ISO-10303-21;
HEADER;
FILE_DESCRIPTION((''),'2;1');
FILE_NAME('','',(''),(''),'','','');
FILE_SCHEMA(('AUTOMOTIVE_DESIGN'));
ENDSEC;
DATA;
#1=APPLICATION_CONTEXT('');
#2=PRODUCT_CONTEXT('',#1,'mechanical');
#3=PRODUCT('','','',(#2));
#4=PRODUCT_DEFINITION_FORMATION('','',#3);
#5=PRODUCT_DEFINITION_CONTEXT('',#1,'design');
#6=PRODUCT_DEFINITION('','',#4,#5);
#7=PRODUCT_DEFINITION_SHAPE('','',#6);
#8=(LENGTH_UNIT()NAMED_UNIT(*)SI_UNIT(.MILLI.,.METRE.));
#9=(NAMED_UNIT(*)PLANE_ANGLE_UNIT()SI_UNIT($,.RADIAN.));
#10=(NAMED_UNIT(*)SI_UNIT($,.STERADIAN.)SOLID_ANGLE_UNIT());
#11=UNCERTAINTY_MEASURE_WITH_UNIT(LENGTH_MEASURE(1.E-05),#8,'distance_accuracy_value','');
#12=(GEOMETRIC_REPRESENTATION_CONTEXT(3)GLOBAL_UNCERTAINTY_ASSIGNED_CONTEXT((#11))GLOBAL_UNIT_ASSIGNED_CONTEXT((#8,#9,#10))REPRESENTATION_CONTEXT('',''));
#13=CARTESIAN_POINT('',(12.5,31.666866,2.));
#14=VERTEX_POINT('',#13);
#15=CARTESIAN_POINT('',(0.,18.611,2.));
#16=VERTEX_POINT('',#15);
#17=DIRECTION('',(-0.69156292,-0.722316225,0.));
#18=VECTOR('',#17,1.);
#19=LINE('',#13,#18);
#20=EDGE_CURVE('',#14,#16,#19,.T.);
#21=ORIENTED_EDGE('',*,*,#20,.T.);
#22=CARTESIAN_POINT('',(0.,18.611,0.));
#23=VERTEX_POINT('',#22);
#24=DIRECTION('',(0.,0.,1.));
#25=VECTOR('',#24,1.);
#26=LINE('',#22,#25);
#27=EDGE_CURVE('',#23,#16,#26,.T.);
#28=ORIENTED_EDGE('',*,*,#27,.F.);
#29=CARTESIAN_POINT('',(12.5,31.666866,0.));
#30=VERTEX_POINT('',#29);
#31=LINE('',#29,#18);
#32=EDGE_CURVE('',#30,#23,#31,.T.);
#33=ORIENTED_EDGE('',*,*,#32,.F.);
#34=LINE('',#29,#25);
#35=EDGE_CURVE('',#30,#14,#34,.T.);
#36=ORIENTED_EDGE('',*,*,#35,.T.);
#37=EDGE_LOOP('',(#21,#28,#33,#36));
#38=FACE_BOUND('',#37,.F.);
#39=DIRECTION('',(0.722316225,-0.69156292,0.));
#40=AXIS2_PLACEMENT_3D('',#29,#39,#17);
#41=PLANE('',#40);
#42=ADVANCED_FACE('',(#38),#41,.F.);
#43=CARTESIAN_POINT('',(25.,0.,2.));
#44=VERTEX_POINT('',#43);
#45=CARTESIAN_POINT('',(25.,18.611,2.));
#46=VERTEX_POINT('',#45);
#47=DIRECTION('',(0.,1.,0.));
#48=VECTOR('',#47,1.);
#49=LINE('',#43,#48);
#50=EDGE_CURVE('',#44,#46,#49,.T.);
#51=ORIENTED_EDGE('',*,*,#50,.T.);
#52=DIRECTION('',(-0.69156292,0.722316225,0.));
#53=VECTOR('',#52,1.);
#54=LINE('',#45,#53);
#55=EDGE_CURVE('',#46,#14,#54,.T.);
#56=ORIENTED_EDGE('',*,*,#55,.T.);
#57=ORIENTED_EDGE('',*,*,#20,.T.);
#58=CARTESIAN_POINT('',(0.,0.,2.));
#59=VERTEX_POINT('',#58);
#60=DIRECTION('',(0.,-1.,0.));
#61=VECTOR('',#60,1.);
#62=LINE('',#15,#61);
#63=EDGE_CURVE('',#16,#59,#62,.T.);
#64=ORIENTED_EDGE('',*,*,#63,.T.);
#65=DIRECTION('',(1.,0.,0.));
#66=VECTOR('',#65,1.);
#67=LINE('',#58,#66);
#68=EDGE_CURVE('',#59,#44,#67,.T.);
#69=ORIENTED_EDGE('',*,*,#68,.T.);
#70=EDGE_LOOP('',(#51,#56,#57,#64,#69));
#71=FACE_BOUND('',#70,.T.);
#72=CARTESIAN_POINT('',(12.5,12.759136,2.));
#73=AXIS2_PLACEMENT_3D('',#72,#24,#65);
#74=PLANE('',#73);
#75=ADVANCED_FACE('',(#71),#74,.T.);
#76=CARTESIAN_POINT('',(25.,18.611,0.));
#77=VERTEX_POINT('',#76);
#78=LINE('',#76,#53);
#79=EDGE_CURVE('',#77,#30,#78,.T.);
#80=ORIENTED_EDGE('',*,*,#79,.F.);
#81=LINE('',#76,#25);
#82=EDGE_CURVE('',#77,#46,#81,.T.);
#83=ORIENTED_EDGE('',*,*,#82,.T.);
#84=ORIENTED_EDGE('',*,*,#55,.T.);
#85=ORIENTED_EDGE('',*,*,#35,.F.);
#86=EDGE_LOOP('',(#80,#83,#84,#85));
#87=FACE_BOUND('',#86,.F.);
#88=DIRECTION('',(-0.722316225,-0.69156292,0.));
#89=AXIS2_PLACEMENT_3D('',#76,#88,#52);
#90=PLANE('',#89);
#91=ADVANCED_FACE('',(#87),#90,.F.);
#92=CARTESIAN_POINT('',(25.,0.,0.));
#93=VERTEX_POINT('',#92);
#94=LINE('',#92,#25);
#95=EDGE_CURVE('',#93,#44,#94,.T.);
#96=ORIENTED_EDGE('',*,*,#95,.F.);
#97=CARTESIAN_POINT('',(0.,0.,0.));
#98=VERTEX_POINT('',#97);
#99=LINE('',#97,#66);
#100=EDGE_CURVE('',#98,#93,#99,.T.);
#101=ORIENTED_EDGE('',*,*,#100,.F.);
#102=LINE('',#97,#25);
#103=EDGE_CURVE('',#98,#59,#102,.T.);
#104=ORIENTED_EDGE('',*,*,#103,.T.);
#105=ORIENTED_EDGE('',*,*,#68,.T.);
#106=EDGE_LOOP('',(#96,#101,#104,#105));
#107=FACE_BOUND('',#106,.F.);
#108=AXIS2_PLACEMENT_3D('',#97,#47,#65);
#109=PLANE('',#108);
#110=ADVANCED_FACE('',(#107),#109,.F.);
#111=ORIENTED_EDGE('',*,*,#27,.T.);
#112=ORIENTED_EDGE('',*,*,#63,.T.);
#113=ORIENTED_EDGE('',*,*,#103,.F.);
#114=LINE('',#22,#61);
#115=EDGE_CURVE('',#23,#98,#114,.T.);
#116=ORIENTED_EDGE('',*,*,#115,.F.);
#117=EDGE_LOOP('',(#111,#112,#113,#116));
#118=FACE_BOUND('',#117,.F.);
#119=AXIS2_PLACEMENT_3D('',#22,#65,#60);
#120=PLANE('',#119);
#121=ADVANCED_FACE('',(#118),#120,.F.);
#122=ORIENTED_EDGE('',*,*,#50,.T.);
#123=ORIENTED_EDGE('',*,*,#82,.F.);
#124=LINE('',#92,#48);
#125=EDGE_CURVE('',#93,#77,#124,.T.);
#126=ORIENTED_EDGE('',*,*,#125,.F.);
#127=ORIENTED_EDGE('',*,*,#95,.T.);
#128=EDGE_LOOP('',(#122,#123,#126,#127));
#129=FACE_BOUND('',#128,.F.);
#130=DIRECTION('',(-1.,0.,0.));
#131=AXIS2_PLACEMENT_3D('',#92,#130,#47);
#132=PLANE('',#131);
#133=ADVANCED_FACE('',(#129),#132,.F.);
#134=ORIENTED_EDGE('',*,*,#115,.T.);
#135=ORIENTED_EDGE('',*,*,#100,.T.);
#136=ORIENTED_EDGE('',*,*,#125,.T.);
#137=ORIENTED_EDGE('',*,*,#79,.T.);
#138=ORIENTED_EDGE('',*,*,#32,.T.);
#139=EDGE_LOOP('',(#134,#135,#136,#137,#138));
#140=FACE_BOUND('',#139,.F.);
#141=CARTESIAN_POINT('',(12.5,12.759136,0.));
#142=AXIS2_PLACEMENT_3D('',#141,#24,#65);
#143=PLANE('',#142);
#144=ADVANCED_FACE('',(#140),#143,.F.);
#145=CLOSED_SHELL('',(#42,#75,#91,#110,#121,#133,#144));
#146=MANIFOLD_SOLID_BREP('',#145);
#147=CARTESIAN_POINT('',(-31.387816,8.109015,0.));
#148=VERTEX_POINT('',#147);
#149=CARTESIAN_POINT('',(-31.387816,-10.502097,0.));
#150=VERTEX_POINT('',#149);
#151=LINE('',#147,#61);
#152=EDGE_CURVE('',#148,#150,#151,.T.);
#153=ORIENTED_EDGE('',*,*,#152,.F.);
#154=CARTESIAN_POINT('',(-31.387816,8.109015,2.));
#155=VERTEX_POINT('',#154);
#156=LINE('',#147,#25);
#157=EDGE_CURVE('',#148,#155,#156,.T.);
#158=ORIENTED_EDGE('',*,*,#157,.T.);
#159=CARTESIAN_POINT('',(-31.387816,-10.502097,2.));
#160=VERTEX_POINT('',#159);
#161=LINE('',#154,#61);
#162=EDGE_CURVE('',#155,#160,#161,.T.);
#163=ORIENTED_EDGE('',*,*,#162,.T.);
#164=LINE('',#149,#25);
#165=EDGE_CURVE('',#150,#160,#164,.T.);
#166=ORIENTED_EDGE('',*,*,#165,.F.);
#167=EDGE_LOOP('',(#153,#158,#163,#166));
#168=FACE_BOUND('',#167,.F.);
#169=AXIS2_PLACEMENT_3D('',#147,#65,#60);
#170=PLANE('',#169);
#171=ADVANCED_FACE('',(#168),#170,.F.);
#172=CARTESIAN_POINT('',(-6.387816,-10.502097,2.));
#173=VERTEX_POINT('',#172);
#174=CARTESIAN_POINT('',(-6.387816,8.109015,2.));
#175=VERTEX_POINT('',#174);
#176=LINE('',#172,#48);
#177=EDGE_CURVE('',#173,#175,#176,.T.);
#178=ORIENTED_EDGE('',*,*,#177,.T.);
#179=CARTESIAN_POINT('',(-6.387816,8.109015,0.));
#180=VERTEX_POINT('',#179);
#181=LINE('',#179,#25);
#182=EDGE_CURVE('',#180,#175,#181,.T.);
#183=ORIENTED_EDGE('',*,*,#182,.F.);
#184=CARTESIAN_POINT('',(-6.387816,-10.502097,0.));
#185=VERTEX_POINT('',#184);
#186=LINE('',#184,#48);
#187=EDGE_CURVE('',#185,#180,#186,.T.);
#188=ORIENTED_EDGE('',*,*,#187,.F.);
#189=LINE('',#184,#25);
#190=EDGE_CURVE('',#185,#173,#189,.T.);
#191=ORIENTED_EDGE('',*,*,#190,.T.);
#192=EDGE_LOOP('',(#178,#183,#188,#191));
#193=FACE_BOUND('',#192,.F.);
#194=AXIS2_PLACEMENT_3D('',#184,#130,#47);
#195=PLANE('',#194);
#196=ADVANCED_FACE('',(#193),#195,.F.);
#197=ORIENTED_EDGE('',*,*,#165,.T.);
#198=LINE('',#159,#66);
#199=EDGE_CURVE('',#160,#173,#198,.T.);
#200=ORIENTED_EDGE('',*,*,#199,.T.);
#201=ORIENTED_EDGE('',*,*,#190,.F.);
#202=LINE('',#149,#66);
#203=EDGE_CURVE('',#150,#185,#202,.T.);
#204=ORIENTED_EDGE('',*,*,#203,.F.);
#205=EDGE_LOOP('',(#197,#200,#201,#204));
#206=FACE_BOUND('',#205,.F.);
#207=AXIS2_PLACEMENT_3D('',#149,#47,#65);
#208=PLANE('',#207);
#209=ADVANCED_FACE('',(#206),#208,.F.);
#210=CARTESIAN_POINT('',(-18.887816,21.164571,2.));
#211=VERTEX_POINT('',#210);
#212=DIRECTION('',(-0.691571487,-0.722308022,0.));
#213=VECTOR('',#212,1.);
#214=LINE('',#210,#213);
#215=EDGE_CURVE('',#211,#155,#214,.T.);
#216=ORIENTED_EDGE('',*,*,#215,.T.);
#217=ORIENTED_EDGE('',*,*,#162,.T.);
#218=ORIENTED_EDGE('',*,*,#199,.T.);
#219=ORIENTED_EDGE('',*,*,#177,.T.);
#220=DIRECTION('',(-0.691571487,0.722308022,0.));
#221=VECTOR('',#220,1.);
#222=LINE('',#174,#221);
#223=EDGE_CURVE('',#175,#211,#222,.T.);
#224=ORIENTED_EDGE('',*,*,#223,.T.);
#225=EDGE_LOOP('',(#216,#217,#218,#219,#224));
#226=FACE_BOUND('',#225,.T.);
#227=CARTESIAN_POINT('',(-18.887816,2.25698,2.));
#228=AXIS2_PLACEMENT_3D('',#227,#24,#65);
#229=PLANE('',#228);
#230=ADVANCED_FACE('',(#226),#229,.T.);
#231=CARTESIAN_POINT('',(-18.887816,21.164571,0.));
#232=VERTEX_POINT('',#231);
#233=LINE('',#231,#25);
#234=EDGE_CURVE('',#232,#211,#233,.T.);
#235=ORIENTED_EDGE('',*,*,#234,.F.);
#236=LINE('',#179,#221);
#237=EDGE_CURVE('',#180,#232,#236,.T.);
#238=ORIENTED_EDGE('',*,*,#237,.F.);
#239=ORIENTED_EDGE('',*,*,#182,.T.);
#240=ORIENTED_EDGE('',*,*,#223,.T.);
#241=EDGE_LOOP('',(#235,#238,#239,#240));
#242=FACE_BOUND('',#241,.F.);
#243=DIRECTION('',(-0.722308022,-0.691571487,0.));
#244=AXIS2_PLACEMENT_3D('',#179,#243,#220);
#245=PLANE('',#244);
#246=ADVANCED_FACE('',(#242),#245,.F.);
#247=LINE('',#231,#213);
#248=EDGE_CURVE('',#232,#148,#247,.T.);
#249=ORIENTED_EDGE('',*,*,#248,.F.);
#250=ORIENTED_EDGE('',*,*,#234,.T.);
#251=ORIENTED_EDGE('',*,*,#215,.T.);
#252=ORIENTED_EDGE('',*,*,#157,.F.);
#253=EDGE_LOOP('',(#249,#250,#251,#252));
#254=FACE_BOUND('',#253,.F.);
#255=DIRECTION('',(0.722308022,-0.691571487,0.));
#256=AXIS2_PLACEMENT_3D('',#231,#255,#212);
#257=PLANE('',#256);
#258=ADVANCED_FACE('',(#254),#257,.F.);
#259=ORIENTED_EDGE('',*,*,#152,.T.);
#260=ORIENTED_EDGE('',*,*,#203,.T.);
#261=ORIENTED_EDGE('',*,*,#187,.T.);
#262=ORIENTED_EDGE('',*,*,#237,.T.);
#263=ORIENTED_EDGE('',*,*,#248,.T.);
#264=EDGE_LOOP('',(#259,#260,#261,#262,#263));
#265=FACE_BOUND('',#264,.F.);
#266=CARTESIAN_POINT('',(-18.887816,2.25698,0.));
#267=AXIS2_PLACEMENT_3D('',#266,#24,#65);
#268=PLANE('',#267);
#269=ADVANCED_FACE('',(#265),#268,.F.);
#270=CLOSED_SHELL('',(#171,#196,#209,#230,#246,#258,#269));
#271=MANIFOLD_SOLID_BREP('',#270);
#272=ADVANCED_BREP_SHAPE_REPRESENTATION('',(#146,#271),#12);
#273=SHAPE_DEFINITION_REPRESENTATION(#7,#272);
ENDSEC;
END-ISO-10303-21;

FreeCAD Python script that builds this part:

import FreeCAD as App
import Part
import Sketcher
from FreeCAD import Vector

doc = App.newDocument("Part")
body = doc.addObject("PartDesign::Body", "Body")

sketch1 = doc.addObject("Sketcher::SketchObject", "Sketch")
body.addObject(sketch1)
sketch1.AttachmentSupport = (doc.XY_Plane, [""])
sketch1.MapMode = "FlatFace"
sketch1.addGeometry([
    Part.LineSegment(Vector(-18.887816, 21.164571, 0), Vector(-31.387816, 8.109015, 0)),
    Part.LineSegment(Vector(-31.387816, 8.109015, 0), Vector(-31.387816, -10.502097, 0)),
    Part.LineSegment(Vector(-31.387816, -10.502097, 0), Vector(-6.387816, -10.502097, 0)),
    Part.LineSegment(Vector(-6.387816, -10.502097, 0), Vector(-6.387816, 8.109015, 0)),
    Part.LineSegment(Vector(-6.387816, 8.109015, 0), Vector(-18.887816, 21.164571, 0)),
], False)
sketch1.addConstraint([
    Sketcher.Constraint("Coincident", 0, 2, 1, 1),
    Sketcher.Constraint("Coincident", 1, 2, 2, 1),
    Sketcher.Constraint("Coincident", 2, 2, 3, 1),
    Sketcher.Constraint("Coincident", 3, 2, 4, 1),
    Sketcher.Constraint("Coincident", 4, 2, 0, 1),
    Sketcher.Constraint("Vertical", 1),
    Sketcher.Constraint("Horizontal", 2),
    Sketcher.Constraint("Vertical", 3),
    Sketcher.Constraint("Horizontal", 0, 2, 3, 2),
    Sketcher.Constraint("Equal", 0, 4),
    Sketcher.Constraint("DistanceX", 2, 1, 2, 2, 25.0),
    Sketcher.Constraint("DistanceY", 1, 2, 1, 1, 18.611112),
    Sketcher.Constraint("DistanceY", -1, 1, 4, 2, 21.164571),
    Sketcher.Constraint("Distance", 0, 18.074776),
    Sketcher.Constraint("DistanceX", 0, 2, -1, 1, 31.387816),
])
pad1 = doc.addObject("PartDesign::Pad", "Pad")
body.addObject(pad1)
pad1.Profile = sketch1
pad1.Length = 2
body2 = doc.addObject("PartDesign::Body", "Body001")

sketch2 = doc.addObject("Sketcher::SketchObject", "Sketch001")
body2.addObject(sketch2)
sketch2.AttachmentSupport = (doc.getObject("XY_Plane001"), [""])
sketch2.MapMode = "FlatFace"
sketch2.addGeometry([
    Part.LineSegment(Vector(0, 18.611, 0), Vector(0, 0, 0)),
    Part.LineSegment(Vector(0, 0, 0), Vector(25, 0, 0)),
    Part.LineSegment(Vector(25, 0, 0), Vector(25, 18.611, 0)),
    Part.LineSegment(Vector(25, 18.611, 0), Vector(12.5, 31.666866, 0)),
    Part.LineSegment(Vector(12.5, 31.666866, 0), Vector(0, 18.611, 0)),
], False)
sketch2.addConstraint([
    Sketcher.Constraint("Coincident", 0, 2, 1, 1),
    Sketcher.Constraint("Coincident", 1, 2, 2, 1),
    Sketcher.Constraint("Coincident", 2, 2, 3, 1),
    Sketcher.Constraint("Coincident", 3, 2, 4, 1),
    Sketcher.Constraint("Coincident", 4, 2, 0, 1),
    Sketcher.Constraint("Vertical", 0),
    Sketcher.Constraint("Horizontal", 1),
    Sketcher.Constraint("Vertical", 2),
    Sketcher.Constraint("Coincident", 0, 2, -1, 1),
    Sketcher.Constraint("Horizontal", 2, 2, 4, 2),
    Sketcher.Constraint("Equal", 3, 4),
    Sketcher.Constraint("DistanceX", 1, 1, 1, 2, 25.0),
    Sketcher.Constraint("DistanceY", 0, 2, 0, 1, 18.611),
    Sketcher.Constraint("Distance", 3, 18.075),
])
pad2 = doc.addObject("PartDesign::Pad", "Pad001")
body2.addObject(pad2)
pad2.Profile = sketch2
pad2.Length = 2

doc.recompute()
